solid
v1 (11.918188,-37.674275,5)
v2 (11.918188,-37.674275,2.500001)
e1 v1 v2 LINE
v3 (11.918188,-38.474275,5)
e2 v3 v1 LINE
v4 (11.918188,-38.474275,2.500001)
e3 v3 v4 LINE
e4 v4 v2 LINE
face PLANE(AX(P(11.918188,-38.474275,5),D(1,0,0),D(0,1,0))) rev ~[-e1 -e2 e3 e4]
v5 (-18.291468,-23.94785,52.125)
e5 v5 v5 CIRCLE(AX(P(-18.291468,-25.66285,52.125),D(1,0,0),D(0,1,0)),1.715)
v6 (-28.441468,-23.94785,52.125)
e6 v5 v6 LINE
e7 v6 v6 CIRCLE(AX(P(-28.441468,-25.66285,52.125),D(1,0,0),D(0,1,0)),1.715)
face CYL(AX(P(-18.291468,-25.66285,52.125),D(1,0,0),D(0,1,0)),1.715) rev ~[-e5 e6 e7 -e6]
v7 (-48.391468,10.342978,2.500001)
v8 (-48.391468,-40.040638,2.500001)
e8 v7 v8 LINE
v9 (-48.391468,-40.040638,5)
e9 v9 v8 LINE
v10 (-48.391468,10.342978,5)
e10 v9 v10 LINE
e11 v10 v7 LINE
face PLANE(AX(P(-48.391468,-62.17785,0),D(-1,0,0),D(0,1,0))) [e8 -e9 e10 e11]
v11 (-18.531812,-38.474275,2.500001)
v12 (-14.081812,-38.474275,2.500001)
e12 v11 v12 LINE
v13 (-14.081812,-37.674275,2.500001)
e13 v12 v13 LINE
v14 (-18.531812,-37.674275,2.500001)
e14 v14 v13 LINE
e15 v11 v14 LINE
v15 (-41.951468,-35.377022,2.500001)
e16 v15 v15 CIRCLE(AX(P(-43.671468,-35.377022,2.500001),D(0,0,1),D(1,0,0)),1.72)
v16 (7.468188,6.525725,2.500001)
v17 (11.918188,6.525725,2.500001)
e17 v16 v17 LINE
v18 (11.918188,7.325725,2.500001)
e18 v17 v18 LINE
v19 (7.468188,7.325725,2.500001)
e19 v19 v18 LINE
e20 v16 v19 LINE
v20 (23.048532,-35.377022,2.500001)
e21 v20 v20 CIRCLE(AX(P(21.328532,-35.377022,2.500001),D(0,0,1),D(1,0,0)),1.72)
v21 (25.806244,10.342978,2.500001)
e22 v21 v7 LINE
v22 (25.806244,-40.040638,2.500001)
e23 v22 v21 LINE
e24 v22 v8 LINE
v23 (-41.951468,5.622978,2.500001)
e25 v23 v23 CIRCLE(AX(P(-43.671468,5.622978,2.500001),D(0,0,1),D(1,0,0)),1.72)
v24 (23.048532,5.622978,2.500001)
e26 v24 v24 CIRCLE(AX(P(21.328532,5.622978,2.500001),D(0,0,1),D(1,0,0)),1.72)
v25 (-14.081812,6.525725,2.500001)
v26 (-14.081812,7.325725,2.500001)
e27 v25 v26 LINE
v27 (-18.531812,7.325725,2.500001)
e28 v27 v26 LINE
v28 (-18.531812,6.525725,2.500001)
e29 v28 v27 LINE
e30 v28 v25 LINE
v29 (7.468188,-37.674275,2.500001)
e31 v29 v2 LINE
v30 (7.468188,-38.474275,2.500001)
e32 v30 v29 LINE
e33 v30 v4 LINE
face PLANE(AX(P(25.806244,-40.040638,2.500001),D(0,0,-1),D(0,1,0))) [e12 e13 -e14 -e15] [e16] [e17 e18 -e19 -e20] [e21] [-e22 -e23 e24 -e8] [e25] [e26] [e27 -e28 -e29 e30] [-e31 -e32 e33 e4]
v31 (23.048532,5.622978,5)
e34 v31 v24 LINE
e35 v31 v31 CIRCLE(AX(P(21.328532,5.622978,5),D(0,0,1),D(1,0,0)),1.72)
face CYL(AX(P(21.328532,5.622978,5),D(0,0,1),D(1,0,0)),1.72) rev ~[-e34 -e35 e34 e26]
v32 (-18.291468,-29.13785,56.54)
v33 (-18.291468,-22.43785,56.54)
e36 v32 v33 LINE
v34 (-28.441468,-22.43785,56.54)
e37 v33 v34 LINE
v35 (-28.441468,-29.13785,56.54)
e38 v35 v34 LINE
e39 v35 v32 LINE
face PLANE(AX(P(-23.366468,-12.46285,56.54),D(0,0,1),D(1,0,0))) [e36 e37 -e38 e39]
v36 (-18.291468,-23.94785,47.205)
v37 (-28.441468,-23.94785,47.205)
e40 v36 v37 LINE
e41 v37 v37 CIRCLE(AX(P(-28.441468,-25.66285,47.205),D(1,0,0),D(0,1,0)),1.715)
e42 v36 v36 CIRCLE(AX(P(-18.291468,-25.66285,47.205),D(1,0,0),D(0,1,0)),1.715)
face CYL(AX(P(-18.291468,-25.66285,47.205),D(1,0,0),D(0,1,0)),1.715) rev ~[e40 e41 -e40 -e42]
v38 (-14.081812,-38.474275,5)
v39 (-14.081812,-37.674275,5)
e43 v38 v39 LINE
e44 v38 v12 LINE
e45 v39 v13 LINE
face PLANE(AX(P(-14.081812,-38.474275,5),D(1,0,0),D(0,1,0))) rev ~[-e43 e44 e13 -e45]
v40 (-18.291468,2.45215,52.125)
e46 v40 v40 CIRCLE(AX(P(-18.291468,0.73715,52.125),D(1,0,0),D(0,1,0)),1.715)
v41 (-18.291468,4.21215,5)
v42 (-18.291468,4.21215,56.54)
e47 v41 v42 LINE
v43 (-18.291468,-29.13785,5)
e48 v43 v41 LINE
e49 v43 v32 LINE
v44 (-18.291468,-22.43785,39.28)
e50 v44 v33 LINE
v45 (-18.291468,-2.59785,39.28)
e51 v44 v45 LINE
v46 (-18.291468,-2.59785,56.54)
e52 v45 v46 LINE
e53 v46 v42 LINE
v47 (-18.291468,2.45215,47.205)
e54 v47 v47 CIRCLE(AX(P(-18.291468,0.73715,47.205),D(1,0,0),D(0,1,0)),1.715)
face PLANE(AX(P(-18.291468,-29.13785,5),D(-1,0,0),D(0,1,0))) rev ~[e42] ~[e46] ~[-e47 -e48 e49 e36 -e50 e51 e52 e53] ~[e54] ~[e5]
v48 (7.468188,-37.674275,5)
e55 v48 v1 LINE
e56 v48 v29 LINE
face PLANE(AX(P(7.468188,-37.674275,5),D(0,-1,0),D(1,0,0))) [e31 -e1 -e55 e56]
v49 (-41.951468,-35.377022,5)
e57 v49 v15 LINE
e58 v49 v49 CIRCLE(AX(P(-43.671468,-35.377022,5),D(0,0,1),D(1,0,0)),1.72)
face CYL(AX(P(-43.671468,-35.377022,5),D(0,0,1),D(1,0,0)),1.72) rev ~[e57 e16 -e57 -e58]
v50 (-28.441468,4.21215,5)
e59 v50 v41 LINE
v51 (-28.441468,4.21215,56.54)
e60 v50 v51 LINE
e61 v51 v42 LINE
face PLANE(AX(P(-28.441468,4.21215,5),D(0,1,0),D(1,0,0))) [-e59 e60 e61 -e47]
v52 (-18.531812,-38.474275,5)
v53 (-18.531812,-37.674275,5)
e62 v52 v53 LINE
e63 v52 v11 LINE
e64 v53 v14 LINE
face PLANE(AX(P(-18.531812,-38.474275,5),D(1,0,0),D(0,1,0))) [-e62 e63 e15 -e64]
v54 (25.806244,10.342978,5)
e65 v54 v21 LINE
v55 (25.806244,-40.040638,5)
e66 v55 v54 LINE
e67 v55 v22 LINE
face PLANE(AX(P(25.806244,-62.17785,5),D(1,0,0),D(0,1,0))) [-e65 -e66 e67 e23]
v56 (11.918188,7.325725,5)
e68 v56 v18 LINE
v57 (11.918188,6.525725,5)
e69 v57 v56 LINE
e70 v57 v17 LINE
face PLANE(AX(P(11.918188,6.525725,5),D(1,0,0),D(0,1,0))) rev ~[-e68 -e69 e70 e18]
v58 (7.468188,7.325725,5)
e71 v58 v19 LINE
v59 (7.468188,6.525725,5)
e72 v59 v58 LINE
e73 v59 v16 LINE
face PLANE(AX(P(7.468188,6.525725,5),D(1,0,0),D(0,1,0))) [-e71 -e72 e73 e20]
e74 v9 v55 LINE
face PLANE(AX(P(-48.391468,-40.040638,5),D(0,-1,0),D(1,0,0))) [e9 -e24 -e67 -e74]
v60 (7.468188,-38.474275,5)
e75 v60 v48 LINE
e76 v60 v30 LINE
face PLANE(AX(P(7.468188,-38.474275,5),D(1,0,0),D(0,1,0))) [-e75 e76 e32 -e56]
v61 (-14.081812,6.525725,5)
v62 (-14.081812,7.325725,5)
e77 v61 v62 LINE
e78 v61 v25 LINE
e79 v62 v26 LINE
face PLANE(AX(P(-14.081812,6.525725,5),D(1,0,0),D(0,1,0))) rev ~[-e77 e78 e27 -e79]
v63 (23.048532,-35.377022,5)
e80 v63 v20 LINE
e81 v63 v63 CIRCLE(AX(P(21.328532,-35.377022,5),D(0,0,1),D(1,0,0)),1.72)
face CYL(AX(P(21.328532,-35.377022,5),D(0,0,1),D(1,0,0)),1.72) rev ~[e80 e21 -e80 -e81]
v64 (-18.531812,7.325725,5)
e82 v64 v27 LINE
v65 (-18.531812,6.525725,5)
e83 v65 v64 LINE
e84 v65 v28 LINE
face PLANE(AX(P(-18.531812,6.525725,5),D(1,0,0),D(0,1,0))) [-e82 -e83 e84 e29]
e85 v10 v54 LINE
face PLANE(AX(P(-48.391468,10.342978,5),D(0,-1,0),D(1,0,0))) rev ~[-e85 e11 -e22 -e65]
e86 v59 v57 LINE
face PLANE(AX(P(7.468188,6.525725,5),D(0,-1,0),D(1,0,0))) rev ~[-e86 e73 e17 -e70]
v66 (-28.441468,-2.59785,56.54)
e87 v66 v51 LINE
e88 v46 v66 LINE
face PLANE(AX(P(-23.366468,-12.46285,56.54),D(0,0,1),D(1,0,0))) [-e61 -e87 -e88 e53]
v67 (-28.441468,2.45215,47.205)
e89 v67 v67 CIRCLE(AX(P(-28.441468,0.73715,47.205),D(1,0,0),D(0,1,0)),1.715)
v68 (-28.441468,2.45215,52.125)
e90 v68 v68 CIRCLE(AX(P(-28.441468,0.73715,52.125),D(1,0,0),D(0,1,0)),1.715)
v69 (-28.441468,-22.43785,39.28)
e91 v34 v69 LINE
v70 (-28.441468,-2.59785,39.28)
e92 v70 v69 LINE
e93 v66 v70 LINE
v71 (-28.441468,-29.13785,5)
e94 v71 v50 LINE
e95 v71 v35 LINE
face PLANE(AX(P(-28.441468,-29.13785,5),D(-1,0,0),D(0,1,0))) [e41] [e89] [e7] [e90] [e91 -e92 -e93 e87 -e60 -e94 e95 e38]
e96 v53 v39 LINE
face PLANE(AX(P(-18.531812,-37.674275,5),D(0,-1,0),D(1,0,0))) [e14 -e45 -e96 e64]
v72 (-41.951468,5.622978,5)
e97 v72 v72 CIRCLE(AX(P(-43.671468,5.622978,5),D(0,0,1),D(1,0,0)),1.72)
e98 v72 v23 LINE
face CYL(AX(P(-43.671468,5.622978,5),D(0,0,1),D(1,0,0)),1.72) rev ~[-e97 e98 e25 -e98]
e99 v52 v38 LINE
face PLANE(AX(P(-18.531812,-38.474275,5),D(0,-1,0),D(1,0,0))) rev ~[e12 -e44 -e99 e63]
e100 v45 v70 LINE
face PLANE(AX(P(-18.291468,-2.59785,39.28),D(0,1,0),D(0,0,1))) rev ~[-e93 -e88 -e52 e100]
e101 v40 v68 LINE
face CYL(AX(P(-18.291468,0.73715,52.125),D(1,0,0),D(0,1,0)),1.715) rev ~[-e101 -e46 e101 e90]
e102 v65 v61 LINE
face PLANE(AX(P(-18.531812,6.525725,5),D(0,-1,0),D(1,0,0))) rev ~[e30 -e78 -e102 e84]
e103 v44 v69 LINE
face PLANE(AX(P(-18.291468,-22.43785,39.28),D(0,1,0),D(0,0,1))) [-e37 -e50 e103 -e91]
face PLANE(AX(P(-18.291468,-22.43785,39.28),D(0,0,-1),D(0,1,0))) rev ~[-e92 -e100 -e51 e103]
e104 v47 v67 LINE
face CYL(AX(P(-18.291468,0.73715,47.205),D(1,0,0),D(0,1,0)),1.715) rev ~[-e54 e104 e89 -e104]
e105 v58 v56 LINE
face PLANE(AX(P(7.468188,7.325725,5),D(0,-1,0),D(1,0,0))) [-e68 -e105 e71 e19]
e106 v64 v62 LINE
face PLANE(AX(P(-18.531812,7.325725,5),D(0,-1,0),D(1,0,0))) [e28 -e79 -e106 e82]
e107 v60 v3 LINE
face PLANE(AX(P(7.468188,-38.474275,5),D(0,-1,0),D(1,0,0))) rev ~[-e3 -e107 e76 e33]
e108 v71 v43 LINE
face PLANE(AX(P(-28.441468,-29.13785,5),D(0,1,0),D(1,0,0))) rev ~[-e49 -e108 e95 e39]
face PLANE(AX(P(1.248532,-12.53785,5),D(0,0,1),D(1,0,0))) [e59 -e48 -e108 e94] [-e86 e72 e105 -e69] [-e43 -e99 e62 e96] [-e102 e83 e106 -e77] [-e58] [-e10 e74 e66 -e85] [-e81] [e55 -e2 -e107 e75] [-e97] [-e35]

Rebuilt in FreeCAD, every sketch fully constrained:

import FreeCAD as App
import Part
import Sketcher

V = App.Vector


def add_polygon(sketch, points):
    """Adds a closed chain of lines whose ends are joined by coincident constraints."""
    first, n = sketch.GeometryCount, len(points)
    for a, b in zip(points, points[1:] + points[:1]):
        sketch.addGeometry(Part.LineSegment(App.Vector(*a, 0), App.Vector(*b, 0)), False)
    for i in range(n):
        sketch.addConstraint(Sketcher.Constraint("Coincident", first + i, 2, first + (i + 1) % n, 1))

doc = App.newDocument("Part")
body = doc.addObject("PartDesign::Body", "Body")

sketch1 = body.newObject("Sketcher::SketchObject", "Sketch")
sketch1.AttachmentSupport = (doc.getObject("XY_Plane"), [""])
sketch1.MapMode = "FlatFace"
add_polygon(sketch1, [(-48.391468, 37.10215), (-48.391468, -62.17785), (50.888532, -62.17785), (50.888532, 37.10215)])
sketch1.addConstraint(Sketcher.Constraint("Vertical", 0))
sketch1.addConstraint(Sketcher.Constraint("Horizontal", 1))
sketch1.addConstraint(Sketcher.Constraint("Vertical", 2))
sketch1.addConstraint(Sketcher.Constraint("Horizontal", 3))
sketch1.addConstraint(Sketcher.Constraint("Equal", 3, 0))
sketch1.addConstraint(Sketcher.Constraint("DistanceX", 1, 1, 1, 2, 99.28))
sketch1.addConstraint(Sketcher.Constraint("DistanceX", 0, 2, -1, 1, 48.391468))
sketch1.addConstraint(Sketcher.Constraint("DistanceY", 0, 2, -1, 1, 62.17785))
pad1 = body.newObject("PartDesign::Pad", "Pad")
pad1.Profile = sketch1
pad1.Length = 5

sketch2 = body.newObject("Sketcher::SketchObject", "Sketch001")
sketch2.AttachmentSupport = (doc.getObject("XY_Plane"), [""])
sketch2.MapMode = "FlatFace"
sketch2.addGeometry(Part.Circle(V(0, -12.20285, 0), V(0, 0, 1), 9.975), False)
sketch2.addConstraint(Sketcher.Constraint("PointOnObject", 0, 3, -2))
sketch2.addConstraint(Sketcher.Constraint("Diameter", 0, 19.95))
sketch2.addConstraint(Sketcher.Constraint("DistanceY", 0, 3, -1, 1, 12.20285))
pad2 = body.newObject("PartDesign::Pad", "Pad001")
pad2.Profile = sketch2
pad2.Length = 50.12
pad2.Reversed = True

sketch3 = body.newObject("Sketcher::SketchObject", "Sketch002")
sketch3.AttachmentSupport = (doc.getObject("XY_Plane"), [""])
sketch3.MapMode = "FlatFace"
sketch3.AttachmentOffset = App.Placement(V(0, 0, -50.12), App.Rotation())
sketch3.addGeometry(Part.Circle(V(0, -12.20285, 0), V(0, 0, 1), 6.97414), False)
sketch3.addConstraint(Sketcher.Constraint("PointOnObject", 0, 3, -2))
sketch3.addConstraint(Sketcher.Constraint("Diameter", 0, 13.94828))
sketch3.addConstraint(Sketcher.Constraint("DistanceY", 0, 3, -1, 1, 12.20285))
pocket1 = body.newObject("PartDesign::Pocket", "Pocket")
pocket1.Profile = sketch3
pocket1.Length = 45
pocket1.Reversed = True

sketch4 = body.newObject("Sketcher::SketchObject", "Sketch003")
sketch4.AttachmentSupport = (doc.getObject("XY_Plane"), [""])
sketch4.MapMode = "FlatFace"
sketch4.AttachmentOffset = App.Placement(V(0, 0, 5), App.Rotation())
add_polygon(sketch4, [(-28.441468, 4.21215), (-28.441468, -29.13785), (-18.291468, -29.13785), (-18.291468, 4.21215)])
sketch4.addConstraint(Sketcher.Constraint("Vertical", 0))
sketch4.addConstraint(Sketcher.Constraint("Horizontal", 1))
sketch4.addConstraint(Sketcher.Constraint("Vertical", 2))
sketch4.addConstraint(Sketcher.Constraint("Horizontal", 3))
sketch4.addConstraint(Sketcher.Constraint("DistanceX", 1, 1, 1, 2, 10.15))
sketch4.addConstraint(Sketcher.Constraint("DistanceY", 0, 2, 0, 1, 33.35))
sketch4.addConstraint(Sketcher.Constraint("DistanceX", 0, 2, -1, 1, 28.441468))
sketch4.addConstraint(Sketcher.Constraint("DistanceY", 0, 2, -1, 1, 29.13785))
pad3 = body.newObject("PartDesign::Pad", "Pad002")
pad3.Profile = sketch4
pad3.Length = 51.54

sketch5 = body.newObject("Sketcher::SketchObject", "Sketch004")
sketch5.AttachmentSupport = (doc.getObject("YZ_Plane"), [""])
sketch5.MapMode = "FlatFace"
sketch5.AttachmentOffset = App.Placement(V(0, 0, -18.291468), App.Rotation())
add_polygon(sketch5, [(-22.43785, 56.54), (-22.43785, 39.28), (-2.59785, 39.28), (-2.59785, 56.54)])
sketch5.addConstraint(Sketcher.Constraint("Vertical", 0))
sketch5.addConstraint(Sketcher.Constraint("Horizontal", 1))
sketch5.addConstraint(Sketcher.Constraint("Vertical", 2))
sketch5.addConstraint(Sketcher.Constraint("Horizontal", 3))
sketch5.addConstraint(Sketcher.Constraint("DistanceX", 1, 1, 1, 2, 19.84))
sketch5.addConstraint(Sketcher.Constraint("DistanceY", 0, 2, 0, 1, 17.26))
sketch5.addConstraint(Sketcher.Constraint("DistanceY", -1, 1, 0, 2, 39.28))
sketch5.addConstraint(Sketcher.Constraint("DistanceX", 0, 2, -1, 1, 22.43785))
pocket2 = body.newObject("PartDesign::Pocket", "Pocket001")
pocket2.Profile = sketch5
pocket2.Type = "ThroughAll"

sketch6 = body.newObject("Sketcher::SketchObject", "Sketch005")
sketch6.AttachmentSupport = (doc.getObject("YZ_Plane"), [""])
sketch6.MapMode = "FlatFace"
sketch6.AttachmentOffset = App.Placement(V(0, 0, -18.291468), App.Rotation())
sketch6.addGeometry(Part.Circle(V(-25.66285, 52.125, 0), V(0, 0, 1), 1.715), False)
sketch6.addGeometry(Part.Circle(V(-25.66285, 47.205, 0), V(0, 0, 1), 1.715), False)
sketch6.addConstraint(Sketcher.Constraint("Equal", 0, 1))
sketch6.addConstraint(Sketcher.Constraint("Vertical", 0, 3, 1, 3))
sketch6.addConstraint(Sketcher.Constraint("Diameter", 0, 3.43))
sketch6.addConstraint(Sketcher.Constraint("DistanceY", 1, 3, 0, 3, 4.92))
sketch6.addConstraint(Sketcher.Constraint("DistanceY", -1, 1, 0, 3, 52.125))
sketch6.addConstraint(Sketcher.Constraint("DistanceX", 0, 3, -1, 1, 25.66285))
pocket3 = body.newObject("PartDesign::Pocket", "Pocket002")
pocket3.Profile = sketch6
pocket3.Type = "ThroughAll"

sketch7 = body.newObject("Sketcher::SketchObject", "Sketch006")
sketch7.AttachmentSupport = (doc.getObject("XY_Plane"), [""])
sketch7.MapMode = "FlatFace"
sketch7.AttachmentOffset = App.Placement(V(0, 0, 5), App.Rotation())
add_polygon(sketch7, [(-48.391468, 37.10215), (-48.391468, 10.342978), (50.888532, 10.342978), (50.888532, 37.10215)])
sketch7.addConstraint(Sketcher.Constraint("Vertical", 0))
sketch7.addConstraint(Sketcher.Constraint("Horizontal", 1))
sketch7.addConstraint(Sketcher.Constraint("Vertical", 2))
sketch7.addConstraint(Sketcher.Constraint("Horizontal", 3))
sketch7.addConstraint(Sketcher.Constraint("DistanceX", 1, 1, 1, 2, 99.28))
sketch7.addConstraint(Sketcher.Constraint("DistanceY", 0, 2, 0, 1, 26.759172))
sketch7.addConstraint(Sketcher.Constraint("DistanceX", 0, 2, -1, 1, 48.391468))
sketch7.addConstraint(Sketcher.Constraint("DistanceY", -1, 1, 2, 2, 37.10215))
pocket4 = body.newObject("PartDesign::Pocket", "Pocket003")
pocket4.Profile = sketch7
pocket4.Type = "ThroughAll"

sketch8 = body.newObject("Sketcher::SketchObject", "Sketch007")
sketch8.AttachmentSupport = (doc.getObject("XY_Plane"), [""])
sketch8.MapMode = "FlatFace"
sketch8.AttachmentOffset = App.Placement(V(0, 0, 5), App.Rotation())
add_polygon(sketch8, [(25.806244, 10.342978), (25.806244, -62.17785), (50.888532, -62.17785), (50.888532, 10.342978)])
sketch8.addConstraint(Sketcher.Constraint("Vertical", 0))
sketch8.addConstraint(Sketcher.Constraint("Horizontal", 1))
sketch8.addConstraint(Sketcher.Constraint("Vertical", 2))
sketch8.addConstraint(Sketcher.Constraint("Horizontal", 3))
sketch8.addConstraint(Sketcher.Constraint("DistanceX", 1, 1, 1, 2, 25.082288))
sketch8.addConstraint(Sketcher.Constraint("DistanceY", 0, 2, 0, 1, 72.520828))
sketch8.addConstraint(Sketcher.Constraint("DistanceY", 0, 2, -1, 1, 62.17785))
sketch8.addConstraint(Sketcher.Constraint("DistanceX", -1, 1, 1, 2, 50.888532))
pocket5 = body.newObject("PartDesign::Pocket", "Pocket004")
pocket5.Profile = sketch8
pocket5.Type = "ThroughAll"

sketch9 = body.newObject("Sketcher::SketchObject", "Sketch008")
sketch9.AttachmentSupport = (doc.getObject("XY_Plane"), [""])
sketch9.MapMode = "FlatFace"
sketch9.AttachmentOffset = App.Placement(V(0, 0, 5), App.Rotation())
add_polygon(sketch9, [(-48.391468, -40.040638), (-48.391468, -62.17785), (25.806244, -62.17785), (25.806244, -40.040638)])
sketch9.addConstraint(Sketcher.Constraint("Vertical", 0))
sketch9.addConstraint(Sketcher.Constraint("Horizontal", 1))
sketch9.addConstraint(Sketcher.Constraint("Vertical", 2))
sketch9.addConstraint(Sketcher.Constraint("Horizontal", 3))
sketch9.addConstraint(Sketcher.Constraint("DistanceX", 1, 1, 1, 2, 74.197712))
sketch9.addConstraint(Sketcher.Constraint("DistanceY", 0, 2, 0, 1, 22.137212))
sketch9.addConstraint(Sketcher.Constraint("DistanceX", 0, 2, -1, 1, 48.391468))
sketch9.addConstraint(Sketcher.Constraint("DistanceY", 0, 2, -1, 1, 62.17785))
pocket6 = body.newObject("PartDesign::Pocket", "Pocket005")
pocket6.Profile = sketch9
pocket6.Type = "ThroughAll"

sketch10 = body.newObject("Sketcher::SketchObject", "Sketch009")
sketch10.AttachmentSupport = (doc.getObject("YZ_Plane"), [""])
sketch10.MapMode = "FlatFace"
sketch10.AttachmentOffset = App.Placement(V(0, 0, -18.291468), App.Rotation())
sketch10.addGeometry(Part.Circle(V(0.73715, 52.125, 0), V(0, 0, 1), 1.715), False)
sketch10.addGeometry(Part.Circle(V(0.73715, 47.205, 0), V(0, 0, 1), 1.715), False)
sketch10.addConstraint(Sketcher.Constraint("Equal", 0, 1))
sketch10.addConstraint(Sketcher.Constraint("Vertical", 0, 3, 1, 3))
sketch10.addConstraint(Sketcher.Constraint("Diameter", 0, 3.43))
sketch10.addConstraint(Sketcher.Constraint("DistanceY", 1, 3, 0, 3, 4.92))
sketch10.addConstraint(Sketcher.Constraint("DistanceY", -1, 1, 0, 3, 52.125))
sketch10.addConstraint(Sketcher.Constraint("DistanceX", -1, 1, 0, 3, 0.73715))
pocket7 = body.newObject("PartDesign::Pocket", "Pocket006")
pocket7.Profile = sketch10
pocket7.Type = "ThroughAll"

sketch11 = body.newObject("Sketcher::SketchObject", "Sketch010")
sketch11.AttachmentSupport = (doc.getObject("XY_Plane"), [""])
sketch11.MapMode = "FlatFace"
sketch11.AttachmentOffset = App.Placement(V(0, 0, 5), App.Rotation())
add_polygon(sketch11, [(-18.531812, -37.674275), (-18.531812, -38.474275), (-14.081812, -38.474275), (-14.081812, -37.674275)])
add_polygon(sketch11, [(-18.531812, 7.325725), (-18.531812, 6.525725), (-14.081812, 6.525725), (-14.081812, 7.325725)])
add_polygon(sketch11, [(7.468188, -37.674275), (7.468188, -38.474275), (11.918188, -38.474275), (11.918188, -37.674275)])
add_polygon(sketch11, [(7.468188, 7.325725), (7.468188, 6.525725), (11.918188, 6.525725), (11.918188, 7.325725)])
sketch11.addConstraint(Sketcher.Constraint("Vertical", 0))
sketch11.addConstraint(Sketcher.Constraint("Horizontal", 1))
sketch11.addConstraint(Sketcher.Constraint("Vertical", 2))
sketch11.addConstraint(Sketcher.Constraint("Horizontal", 3))
sketch11.addConstraint(Sketcher.Constraint("Vertical", 4))
sketch11.addConstraint(Sketcher.Constraint("Horizontal", 5))
sketch11.addConstraint(Sketcher.Constraint("Vertical", 6))
sketch11.addConstraint(Sketcher.Constraint("Horizontal", 7))
sketch11.addConstraint(Sketcher.Constraint("Vertical", 8))
sketch11.addConstraint(Sketcher.Constraint("Horizontal", 9))
sketch11.addConstraint(Sketcher.Constraint("Vertical", 10))
sketch11.addConstraint(Sketcher.Constraint("Horizontal", 11))
sketch11.addConstraint(Sketcher.Constraint("Vertical", 12))
sketch11.addConstraint(Sketcher.Constraint("Horizontal", 13))
sketch11.addConstraint(Sketcher.Constraint("Vertical", 14))
sketch11.addConstraint(Sketcher.Constraint("Horizontal", 15))
sketch11.addConstraint(Sketcher.Constraint("Horizontal", 1, 2, 8, 2))
sketch11.addConstraint(Sketcher.Constraint("Horizontal", 3, 2, 10, 2))
sketch11.addConstraint(Sketcher.Constraint("Horizontal", 5, 2, 12, 2))
sketch11.addConstraint(Sketcher.Constraint("Horizontal", 7, 2, 14, 2))
sketch11.addConstraint(Sketcher.Constraint("Vertical", 3, 2, 4, 2))
sketch11.addConstraint(Sketcher.Constraint("Vertical", 2, 2, 5, 2))
sketch11.addConstraint(Sketcher.Constraint("Vertical", 11, 2, 12, 2))
sketch11.addConstraint(Sketcher.Constraint("Vertical", 10, 2, 13, 2))
sketch11.addConstraint(Sketcher.Constraint("Equal", 7, 9))
sketch11.addConstraint(Sketcher.Constraint("Equal", 2, 4))
sketch11.addConstraint(Sketcher.Constraint("DistanceY", 0, 2, 0, 1, 0.8))
sketch11.addConstraint(Sketcher.Constraint("DistanceY", 0, 2, 4, 2, 45.0))
sketch11.addConstraint(Sketcher.Constraint("DistanceX", 0, 2, 8, 2, 26.0))
sketch11.addConstraint(Sketcher.Constraint("DistanceX", 1, 1, 1, 2, 4.45))
sketch11.addConstraint(Sketcher.Constraint("DistanceX", 0, 2, -1, 1, 18.531812))
sketch11.addConstraint(Sketcher.Constraint("DistanceY", 0, 2, -1, 1, 38.474275))
pocket8 = body.newObject("PartDesign::Pocket", "Pocket007")
pocket8.Profile = sketch11
pocket8.Type = "ThroughAll"

sketch12 = body.newObject("Sketcher::SketchObject", "Sketch011")
sketch12.AttachmentSupport = (doc.getObject("XY_Plane"), [""])
sketch12.MapMode = "FlatFace"
sketch12.AttachmentOffset = App.Placement(V(0, 0, 5), App.Rotation())
sketch12.addGeometry(Part.Circle(V(-43.671468, 5.622978, 0), V(0, 0, 1), 1.72), False)
sketch12.addGeometry(Part.Circle(V(-43.671468, -35.377022, 0), V(0, 0, 1), 1.72), False)
sketch12.addGeometry(Part.Circle(V(21.328532, 5.622978, 0), V(0, 0, 1), 1.72), False)
sketch12.addGeometry(Part.Circle(V(21.328532, -35.377022, 0), V(0, 0, 1), 1.72), False)
sketch12.addConstraint(Sketcher.Constraint("Equal", 0, 1))
sketch12.addConstraint(Sketcher.Constraint("Equal", 1, 2))
sketch12.addConstraint(Sketcher.Constraint("Equal", 2, 3))
sketch12.addConstraint(Sketcher.Constraint("Horizontal", 0, 3, 2, 3))
sketch12.addConstraint(Sketcher.Constraint("Horizontal", 1, 3, 3, 3))
sketch12.addConstraint(Sketcher.Constraint("Vertical", 0, 3, 1, 3))
sketch12.addConstraint(Sketcher.Constraint("Vertical", 2, 3, 3, 3))
sketch12.addConstraint(Sketcher.Constraint("Diameter", 0, 3.44))
sketch12.addConstraint(Sketcher.Constraint("DistanceY", 1, 3, 0, 3, 41.0))
sketch12.addConstraint(Sketcher.Constraint("DistanceX", 0, 3, 2, 3, 65.0))
sketch12.addConstraint(Sketcher.Constraint("DistanceY", 1, 3, -1, 1, 35.377022))
sketch12.addConstraint(Sketcher.Constraint("DistanceX", -1, 1, 2, 3, 21.328532))
pocket9 = body.newObject("PartDesign::Pocket", "Pocket008")
pocket9.Profile = sketch12
pocket9.Type = "ThroughAll"

sketch13 = body.newObject("Sketcher::SketchObject", "Sketch012")
sketch13.AttachmentSupport = (doc.getObject("YZ_Plane"), [""])
sketch13.MapMode = "FlatFace"
sketch13.AttachmentOffset = App.Placement(V(0, 0, 25.806244), App.Rotation())
add_polygon(sketch13, [(-40.040638, 2.500001), (-40.040638, -54.17263), (10.342978, -54.17263), (10.342978, 2.500001)])
sketch13.addConstraint(Sketcher.Constraint("Vertical", 0))
sketch13.addConstraint(Sketcher.Constraint("Horizontal", 1))
sketch13.addConstraint(Sketcher.Constraint("Vertical", 2))
sketch13.addConstraint(Sketcher.Constraint("Horizontal", 3))
sketch13.addConstraint(Sketcher.Constraint("DistanceY", -1, 1, 2, 2, 2.500001))
sketch13.addConstraint(Sketcher.Constraint("DistanceY", 0, 2, 0, 1, 56.672631))
sketch13.addConstraint(Sketcher.Constraint("DistanceX", 1, 1, 1, 2, 50.383616))
sketch13.addConstraint(Sketcher.Constraint("DistanceX", 0, 2, -1, 1, 40.040638))
pocket10 = body.newObject("PartDesign::Pocket", "Pocket009")
pocket10.Profile = sketch13
pocket10.Type = "ThroughAll"

doc.recompute()
